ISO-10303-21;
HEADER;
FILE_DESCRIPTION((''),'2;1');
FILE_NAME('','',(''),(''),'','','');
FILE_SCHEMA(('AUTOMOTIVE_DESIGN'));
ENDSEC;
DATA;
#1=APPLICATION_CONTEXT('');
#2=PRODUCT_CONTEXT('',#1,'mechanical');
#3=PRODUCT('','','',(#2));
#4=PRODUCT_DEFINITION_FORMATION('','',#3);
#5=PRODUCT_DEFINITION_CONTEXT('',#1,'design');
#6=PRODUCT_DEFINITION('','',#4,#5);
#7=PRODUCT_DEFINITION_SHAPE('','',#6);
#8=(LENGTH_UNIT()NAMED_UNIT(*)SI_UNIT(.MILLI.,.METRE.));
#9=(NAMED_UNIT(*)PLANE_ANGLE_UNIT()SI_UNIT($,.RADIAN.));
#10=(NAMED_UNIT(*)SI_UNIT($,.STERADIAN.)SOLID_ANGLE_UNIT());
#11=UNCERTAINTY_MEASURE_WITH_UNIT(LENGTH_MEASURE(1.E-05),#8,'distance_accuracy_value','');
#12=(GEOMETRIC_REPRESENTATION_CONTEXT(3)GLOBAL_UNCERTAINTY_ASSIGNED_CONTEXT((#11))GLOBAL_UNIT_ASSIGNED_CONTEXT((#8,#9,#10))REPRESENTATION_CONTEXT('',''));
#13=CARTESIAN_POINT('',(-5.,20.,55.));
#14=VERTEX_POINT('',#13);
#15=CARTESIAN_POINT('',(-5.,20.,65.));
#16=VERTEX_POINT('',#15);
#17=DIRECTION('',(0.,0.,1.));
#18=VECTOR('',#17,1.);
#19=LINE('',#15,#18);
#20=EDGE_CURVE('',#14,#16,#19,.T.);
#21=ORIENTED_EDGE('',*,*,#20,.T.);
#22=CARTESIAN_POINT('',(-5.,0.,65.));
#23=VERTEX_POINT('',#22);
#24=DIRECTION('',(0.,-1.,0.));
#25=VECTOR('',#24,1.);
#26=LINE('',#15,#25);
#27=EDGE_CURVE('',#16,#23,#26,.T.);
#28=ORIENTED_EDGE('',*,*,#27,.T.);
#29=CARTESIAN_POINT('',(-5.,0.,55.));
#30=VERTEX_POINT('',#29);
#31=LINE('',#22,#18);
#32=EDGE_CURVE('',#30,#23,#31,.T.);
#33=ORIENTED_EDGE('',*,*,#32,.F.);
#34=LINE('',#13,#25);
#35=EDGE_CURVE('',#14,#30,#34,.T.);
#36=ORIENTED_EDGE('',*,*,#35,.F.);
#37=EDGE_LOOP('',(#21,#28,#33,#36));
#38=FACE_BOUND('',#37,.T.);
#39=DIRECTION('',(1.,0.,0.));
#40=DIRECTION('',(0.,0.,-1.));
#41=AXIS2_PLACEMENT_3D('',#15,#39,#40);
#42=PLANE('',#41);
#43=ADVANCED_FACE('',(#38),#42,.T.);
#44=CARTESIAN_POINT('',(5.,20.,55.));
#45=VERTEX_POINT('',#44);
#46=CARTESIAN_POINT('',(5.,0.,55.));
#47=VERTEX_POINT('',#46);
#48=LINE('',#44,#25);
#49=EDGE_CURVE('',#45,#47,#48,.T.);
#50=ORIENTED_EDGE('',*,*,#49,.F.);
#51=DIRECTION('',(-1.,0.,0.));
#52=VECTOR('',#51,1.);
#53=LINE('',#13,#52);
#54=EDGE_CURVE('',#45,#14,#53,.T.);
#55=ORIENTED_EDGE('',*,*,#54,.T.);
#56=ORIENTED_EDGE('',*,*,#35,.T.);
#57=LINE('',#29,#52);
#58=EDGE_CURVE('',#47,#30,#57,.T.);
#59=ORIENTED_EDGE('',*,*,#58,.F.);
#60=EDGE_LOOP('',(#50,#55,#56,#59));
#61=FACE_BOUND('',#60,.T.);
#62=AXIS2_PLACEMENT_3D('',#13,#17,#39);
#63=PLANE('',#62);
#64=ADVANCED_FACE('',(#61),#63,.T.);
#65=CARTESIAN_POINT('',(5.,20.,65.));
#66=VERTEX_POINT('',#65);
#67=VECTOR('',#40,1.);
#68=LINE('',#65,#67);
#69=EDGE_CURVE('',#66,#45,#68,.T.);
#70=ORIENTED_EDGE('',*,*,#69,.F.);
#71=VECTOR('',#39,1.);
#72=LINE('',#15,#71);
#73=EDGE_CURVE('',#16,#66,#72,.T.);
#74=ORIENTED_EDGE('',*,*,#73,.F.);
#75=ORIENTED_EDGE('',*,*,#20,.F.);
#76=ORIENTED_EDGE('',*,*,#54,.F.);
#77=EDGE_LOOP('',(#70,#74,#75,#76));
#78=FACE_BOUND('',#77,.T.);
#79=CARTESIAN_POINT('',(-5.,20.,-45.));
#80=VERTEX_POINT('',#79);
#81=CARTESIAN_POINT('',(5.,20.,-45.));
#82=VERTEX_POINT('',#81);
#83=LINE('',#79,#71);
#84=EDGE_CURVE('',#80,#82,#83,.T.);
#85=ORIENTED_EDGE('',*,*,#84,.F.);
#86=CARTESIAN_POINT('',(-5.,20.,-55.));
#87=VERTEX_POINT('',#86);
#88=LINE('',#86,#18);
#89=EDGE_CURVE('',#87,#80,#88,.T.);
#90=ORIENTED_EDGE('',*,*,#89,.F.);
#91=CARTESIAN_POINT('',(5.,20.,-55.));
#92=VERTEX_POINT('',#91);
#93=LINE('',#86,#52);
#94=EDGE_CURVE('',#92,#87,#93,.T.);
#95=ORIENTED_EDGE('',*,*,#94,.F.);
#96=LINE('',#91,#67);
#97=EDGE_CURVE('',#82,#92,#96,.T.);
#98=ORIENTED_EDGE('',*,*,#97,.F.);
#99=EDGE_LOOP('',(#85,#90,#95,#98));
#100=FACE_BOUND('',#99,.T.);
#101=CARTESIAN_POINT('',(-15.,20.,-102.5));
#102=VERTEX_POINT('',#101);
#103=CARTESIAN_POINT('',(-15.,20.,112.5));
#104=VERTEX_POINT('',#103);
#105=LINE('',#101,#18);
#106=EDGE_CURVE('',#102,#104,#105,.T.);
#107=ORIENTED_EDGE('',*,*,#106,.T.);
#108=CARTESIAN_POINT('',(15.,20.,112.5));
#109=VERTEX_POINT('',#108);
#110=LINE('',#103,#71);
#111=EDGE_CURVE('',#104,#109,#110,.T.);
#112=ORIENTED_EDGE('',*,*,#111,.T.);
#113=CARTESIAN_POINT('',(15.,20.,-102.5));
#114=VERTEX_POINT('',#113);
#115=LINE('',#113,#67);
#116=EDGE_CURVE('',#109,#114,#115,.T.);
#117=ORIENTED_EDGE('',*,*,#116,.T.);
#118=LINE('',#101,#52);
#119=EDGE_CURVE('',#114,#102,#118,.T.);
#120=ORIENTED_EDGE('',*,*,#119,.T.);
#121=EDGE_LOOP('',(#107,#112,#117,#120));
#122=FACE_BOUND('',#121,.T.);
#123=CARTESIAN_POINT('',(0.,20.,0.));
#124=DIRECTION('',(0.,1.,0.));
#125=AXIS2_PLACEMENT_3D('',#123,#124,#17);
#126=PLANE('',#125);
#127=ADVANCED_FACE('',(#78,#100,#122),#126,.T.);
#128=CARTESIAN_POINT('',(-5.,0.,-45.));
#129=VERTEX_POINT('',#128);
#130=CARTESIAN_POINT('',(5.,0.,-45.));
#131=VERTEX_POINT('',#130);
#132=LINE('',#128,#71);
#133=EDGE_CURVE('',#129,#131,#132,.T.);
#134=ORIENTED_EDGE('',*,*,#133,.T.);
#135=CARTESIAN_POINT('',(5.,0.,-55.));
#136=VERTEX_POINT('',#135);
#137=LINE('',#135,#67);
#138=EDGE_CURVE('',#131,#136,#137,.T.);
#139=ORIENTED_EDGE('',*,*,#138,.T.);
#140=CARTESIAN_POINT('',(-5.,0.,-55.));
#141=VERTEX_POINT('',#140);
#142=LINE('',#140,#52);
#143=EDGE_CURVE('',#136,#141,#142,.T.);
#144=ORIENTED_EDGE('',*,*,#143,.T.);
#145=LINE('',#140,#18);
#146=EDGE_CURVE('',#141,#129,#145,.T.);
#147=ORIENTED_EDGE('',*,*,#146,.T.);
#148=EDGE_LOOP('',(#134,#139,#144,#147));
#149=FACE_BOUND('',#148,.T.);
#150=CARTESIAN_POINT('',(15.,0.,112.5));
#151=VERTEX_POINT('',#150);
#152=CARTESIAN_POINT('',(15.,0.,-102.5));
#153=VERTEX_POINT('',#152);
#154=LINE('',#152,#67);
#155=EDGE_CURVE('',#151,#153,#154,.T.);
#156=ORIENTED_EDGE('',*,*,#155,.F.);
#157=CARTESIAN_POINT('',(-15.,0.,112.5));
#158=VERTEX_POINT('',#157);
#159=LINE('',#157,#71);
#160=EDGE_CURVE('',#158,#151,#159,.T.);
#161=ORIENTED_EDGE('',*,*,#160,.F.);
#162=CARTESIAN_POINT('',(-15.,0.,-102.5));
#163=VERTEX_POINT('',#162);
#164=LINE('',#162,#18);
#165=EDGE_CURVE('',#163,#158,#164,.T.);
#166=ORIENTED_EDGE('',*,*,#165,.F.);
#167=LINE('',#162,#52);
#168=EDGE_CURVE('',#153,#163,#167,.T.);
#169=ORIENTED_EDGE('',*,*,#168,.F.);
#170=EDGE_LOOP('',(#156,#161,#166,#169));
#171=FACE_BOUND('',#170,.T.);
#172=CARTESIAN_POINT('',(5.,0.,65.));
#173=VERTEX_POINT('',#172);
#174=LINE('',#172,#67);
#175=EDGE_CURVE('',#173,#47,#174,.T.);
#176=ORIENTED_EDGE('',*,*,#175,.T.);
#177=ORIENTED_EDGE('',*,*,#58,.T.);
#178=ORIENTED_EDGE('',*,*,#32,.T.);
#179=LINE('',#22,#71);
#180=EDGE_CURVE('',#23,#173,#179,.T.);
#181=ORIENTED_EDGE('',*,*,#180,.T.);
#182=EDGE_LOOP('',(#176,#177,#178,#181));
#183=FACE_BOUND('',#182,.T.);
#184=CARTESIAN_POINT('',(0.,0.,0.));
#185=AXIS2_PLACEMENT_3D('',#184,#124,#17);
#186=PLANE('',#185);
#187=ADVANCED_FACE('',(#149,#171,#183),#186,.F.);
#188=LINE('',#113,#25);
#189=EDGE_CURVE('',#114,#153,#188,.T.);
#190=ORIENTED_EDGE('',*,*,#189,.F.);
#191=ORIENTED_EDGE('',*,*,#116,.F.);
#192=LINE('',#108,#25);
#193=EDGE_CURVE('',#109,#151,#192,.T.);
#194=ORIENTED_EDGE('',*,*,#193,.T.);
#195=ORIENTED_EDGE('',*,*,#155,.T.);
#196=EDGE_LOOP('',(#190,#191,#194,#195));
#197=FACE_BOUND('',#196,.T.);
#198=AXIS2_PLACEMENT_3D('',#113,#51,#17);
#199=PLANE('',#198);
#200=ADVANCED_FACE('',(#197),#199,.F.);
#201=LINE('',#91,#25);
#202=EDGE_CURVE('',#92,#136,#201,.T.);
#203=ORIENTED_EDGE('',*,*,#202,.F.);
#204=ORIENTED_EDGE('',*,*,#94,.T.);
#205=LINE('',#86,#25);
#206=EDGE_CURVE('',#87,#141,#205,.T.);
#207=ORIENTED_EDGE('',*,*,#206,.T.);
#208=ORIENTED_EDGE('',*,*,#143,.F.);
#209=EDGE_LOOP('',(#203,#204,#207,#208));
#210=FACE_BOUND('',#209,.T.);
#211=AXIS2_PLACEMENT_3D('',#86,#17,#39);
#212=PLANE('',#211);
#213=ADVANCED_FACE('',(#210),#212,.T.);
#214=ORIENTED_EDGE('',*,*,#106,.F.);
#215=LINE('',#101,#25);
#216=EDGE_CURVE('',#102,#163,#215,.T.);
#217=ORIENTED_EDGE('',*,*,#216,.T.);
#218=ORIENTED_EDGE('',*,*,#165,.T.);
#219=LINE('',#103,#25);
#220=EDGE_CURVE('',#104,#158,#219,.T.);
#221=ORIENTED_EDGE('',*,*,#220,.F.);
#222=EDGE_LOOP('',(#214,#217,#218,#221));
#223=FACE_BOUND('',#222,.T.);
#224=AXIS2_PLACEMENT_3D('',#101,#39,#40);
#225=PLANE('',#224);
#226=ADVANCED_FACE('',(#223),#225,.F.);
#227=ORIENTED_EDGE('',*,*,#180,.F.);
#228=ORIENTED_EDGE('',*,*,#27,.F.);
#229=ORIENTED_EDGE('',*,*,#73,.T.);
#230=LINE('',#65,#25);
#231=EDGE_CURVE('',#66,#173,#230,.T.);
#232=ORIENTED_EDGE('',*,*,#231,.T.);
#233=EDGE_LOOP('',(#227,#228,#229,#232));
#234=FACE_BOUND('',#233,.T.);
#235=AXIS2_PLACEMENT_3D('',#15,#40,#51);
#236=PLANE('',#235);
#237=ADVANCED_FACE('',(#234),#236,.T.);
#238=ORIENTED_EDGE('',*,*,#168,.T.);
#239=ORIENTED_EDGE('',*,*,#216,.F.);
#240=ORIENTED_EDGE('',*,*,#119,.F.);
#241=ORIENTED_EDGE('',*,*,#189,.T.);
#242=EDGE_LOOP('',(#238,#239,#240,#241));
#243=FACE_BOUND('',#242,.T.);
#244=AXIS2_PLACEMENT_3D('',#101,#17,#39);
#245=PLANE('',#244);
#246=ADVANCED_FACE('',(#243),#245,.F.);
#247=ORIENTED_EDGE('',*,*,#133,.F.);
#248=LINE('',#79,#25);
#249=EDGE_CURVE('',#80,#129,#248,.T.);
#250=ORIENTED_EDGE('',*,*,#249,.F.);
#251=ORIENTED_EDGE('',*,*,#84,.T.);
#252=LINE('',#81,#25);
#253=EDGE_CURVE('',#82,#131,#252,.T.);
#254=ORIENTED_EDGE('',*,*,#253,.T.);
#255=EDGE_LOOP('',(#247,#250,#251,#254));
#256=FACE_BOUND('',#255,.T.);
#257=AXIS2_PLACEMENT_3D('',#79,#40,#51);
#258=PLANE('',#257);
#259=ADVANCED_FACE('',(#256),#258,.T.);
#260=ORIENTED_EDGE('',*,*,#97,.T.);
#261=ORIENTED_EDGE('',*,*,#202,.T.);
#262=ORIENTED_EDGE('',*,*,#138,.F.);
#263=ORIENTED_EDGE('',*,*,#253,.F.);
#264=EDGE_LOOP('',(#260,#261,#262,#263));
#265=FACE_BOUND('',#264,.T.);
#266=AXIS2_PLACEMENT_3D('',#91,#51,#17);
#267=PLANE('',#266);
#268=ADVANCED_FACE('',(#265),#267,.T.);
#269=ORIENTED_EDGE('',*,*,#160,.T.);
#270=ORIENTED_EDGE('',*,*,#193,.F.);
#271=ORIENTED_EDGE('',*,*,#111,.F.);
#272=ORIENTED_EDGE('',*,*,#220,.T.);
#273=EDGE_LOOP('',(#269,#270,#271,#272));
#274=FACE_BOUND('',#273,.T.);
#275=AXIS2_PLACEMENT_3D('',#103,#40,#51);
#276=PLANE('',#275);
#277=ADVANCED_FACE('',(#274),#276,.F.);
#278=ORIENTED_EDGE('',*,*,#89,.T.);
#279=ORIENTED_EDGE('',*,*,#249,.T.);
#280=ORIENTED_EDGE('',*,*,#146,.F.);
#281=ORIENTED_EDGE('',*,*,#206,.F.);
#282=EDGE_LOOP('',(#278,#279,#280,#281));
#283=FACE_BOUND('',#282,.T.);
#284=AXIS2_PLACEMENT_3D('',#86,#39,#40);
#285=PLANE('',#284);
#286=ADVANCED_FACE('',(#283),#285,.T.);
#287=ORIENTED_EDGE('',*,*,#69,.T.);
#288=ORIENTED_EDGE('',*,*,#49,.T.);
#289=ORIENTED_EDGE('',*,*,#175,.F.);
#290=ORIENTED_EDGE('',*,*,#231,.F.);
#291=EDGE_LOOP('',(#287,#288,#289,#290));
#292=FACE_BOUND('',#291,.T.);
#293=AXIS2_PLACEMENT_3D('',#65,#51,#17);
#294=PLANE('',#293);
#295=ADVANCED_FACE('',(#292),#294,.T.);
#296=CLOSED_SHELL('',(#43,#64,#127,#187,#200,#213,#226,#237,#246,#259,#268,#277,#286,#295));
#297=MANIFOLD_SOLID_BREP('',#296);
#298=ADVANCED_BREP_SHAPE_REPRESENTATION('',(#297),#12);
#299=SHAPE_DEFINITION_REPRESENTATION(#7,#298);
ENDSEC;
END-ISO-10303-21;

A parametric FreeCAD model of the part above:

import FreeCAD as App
import Part
import Sketcher
from FreeCAD import Vector
Q = App.Units.Quantity


def add_polygon(sketch, points):
    """Adds a closed chain of lines whose ends are joined by coincident constraints."""
    first, n = sketch.GeometryCount, len(points)
    for a, b in zip(points, points[1:] + points[:1]):
        sketch.addGeometry(Part.LineSegment(App.Vector(*a, 0), App.Vector(*b, 0)), False)
    for i in range(n):
        sketch.addConstraint(Sketcher.Constraint("Coincident", first + i, 2, first + (i + 1) % n, 1))

doc = App.newDocument("Part")
body = doc.addObject("PartDesign::Body", "Body")

# Sketch on XZ plane
sketch1 = body.newObject("Sketcher::SketchObject", "Sketch")
sketch1.AttachmentSupport = (doc.getObject("XZ_Plane"), [""])
sketch1.MapMode = "FlatFace"
add_polygon(sketch1, [(-15, -102), (-15, 112), (15, 112), (15, -102)])  # lines 0-3
add_polygon(sketch1, [(5, 65), (-5, 65), (-5, 55), (5, 55)])  # lines 4-7
add_polygon(sketch1, [(5, -45), (-5, -45), (-5, -55), (5, -55)])  # lines 8-11
sketch1.addConstraint(Sketcher.Constraint("Vertical", 0))
sketch1.addConstraint(Sketcher.Constraint("Horizontal", 1))
sketch1.addConstraint(Sketcher.Constraint("Vertical", 2))
sketch1.addConstraint(Sketcher.Constraint("Horizontal", 3))
sketch1.addConstraint(Sketcher.Constraint("Horizontal", 4))
sketch1.addConstraint(Sketcher.Constraint("Vertical", 5))
sketch1.addConstraint(Sketcher.Constraint("Horizontal", 6))
sketch1.addConstraint(Sketcher.Constraint("Vertical", 7))
sketch1.addConstraint(Sketcher.Constraint("Horizontal", 8))
sketch1.addConstraint(Sketcher.Constraint("Vertical", 9))
sketch1.addConstraint(Sketcher.Constraint("Horizontal", 10))
sketch1.addConstraint(Sketcher.Constraint("Vertical", 11))
sketch1.addConstraint(Sketcher.Constraint("Symmetric", 6, 2, 9, 2, -1, 1))
sketch1.addConstraint(Sketcher.Constraint("Vertical", 5, 2, 8, 2))
sketch1.addConstraint(Sketcher.Constraint("Vertical", 7, 2, 10, 2))
sketch1.addConstraint(Sketcher.Constraint("Equal", 10, 5))
sketch1.addConstraint(Sketcher.Constraint("Equal", 7, 9))
sketch1.addConstraint(Sketcher.Constraint("DistanceX", 1, 1, 1, 2, Q("30 mm")))
sketch1.addConstraint(Sketcher.Constraint("DistanceX", 4, 2, 4, 1, Q("10 mm")))
sketch1.addConstraint(Sketcher.Constraint("DistanceY", 0, 1, 0, 2, Q("215 mm")))
sketch1.addConstraint(Sketcher.Constraint("DistanceX", 0, 2, -1, 1, Q("15 mm")))
sketch1.addConstraint(Sketcher.Constraint("DistanceY", -1, 1, 4, 2, Q("65 mm")))
sketch1.addConstraint(Sketcher.Constraint("DistanceY", -1, 1, 0, 2, Q("112.5 mm")))
pad1 = body.newObject("PartDesign::Pad", "Pad")
pad1.Profile = sketch1
pad1.Length = 20
pad1.Reversed = True

doc.recompute()
